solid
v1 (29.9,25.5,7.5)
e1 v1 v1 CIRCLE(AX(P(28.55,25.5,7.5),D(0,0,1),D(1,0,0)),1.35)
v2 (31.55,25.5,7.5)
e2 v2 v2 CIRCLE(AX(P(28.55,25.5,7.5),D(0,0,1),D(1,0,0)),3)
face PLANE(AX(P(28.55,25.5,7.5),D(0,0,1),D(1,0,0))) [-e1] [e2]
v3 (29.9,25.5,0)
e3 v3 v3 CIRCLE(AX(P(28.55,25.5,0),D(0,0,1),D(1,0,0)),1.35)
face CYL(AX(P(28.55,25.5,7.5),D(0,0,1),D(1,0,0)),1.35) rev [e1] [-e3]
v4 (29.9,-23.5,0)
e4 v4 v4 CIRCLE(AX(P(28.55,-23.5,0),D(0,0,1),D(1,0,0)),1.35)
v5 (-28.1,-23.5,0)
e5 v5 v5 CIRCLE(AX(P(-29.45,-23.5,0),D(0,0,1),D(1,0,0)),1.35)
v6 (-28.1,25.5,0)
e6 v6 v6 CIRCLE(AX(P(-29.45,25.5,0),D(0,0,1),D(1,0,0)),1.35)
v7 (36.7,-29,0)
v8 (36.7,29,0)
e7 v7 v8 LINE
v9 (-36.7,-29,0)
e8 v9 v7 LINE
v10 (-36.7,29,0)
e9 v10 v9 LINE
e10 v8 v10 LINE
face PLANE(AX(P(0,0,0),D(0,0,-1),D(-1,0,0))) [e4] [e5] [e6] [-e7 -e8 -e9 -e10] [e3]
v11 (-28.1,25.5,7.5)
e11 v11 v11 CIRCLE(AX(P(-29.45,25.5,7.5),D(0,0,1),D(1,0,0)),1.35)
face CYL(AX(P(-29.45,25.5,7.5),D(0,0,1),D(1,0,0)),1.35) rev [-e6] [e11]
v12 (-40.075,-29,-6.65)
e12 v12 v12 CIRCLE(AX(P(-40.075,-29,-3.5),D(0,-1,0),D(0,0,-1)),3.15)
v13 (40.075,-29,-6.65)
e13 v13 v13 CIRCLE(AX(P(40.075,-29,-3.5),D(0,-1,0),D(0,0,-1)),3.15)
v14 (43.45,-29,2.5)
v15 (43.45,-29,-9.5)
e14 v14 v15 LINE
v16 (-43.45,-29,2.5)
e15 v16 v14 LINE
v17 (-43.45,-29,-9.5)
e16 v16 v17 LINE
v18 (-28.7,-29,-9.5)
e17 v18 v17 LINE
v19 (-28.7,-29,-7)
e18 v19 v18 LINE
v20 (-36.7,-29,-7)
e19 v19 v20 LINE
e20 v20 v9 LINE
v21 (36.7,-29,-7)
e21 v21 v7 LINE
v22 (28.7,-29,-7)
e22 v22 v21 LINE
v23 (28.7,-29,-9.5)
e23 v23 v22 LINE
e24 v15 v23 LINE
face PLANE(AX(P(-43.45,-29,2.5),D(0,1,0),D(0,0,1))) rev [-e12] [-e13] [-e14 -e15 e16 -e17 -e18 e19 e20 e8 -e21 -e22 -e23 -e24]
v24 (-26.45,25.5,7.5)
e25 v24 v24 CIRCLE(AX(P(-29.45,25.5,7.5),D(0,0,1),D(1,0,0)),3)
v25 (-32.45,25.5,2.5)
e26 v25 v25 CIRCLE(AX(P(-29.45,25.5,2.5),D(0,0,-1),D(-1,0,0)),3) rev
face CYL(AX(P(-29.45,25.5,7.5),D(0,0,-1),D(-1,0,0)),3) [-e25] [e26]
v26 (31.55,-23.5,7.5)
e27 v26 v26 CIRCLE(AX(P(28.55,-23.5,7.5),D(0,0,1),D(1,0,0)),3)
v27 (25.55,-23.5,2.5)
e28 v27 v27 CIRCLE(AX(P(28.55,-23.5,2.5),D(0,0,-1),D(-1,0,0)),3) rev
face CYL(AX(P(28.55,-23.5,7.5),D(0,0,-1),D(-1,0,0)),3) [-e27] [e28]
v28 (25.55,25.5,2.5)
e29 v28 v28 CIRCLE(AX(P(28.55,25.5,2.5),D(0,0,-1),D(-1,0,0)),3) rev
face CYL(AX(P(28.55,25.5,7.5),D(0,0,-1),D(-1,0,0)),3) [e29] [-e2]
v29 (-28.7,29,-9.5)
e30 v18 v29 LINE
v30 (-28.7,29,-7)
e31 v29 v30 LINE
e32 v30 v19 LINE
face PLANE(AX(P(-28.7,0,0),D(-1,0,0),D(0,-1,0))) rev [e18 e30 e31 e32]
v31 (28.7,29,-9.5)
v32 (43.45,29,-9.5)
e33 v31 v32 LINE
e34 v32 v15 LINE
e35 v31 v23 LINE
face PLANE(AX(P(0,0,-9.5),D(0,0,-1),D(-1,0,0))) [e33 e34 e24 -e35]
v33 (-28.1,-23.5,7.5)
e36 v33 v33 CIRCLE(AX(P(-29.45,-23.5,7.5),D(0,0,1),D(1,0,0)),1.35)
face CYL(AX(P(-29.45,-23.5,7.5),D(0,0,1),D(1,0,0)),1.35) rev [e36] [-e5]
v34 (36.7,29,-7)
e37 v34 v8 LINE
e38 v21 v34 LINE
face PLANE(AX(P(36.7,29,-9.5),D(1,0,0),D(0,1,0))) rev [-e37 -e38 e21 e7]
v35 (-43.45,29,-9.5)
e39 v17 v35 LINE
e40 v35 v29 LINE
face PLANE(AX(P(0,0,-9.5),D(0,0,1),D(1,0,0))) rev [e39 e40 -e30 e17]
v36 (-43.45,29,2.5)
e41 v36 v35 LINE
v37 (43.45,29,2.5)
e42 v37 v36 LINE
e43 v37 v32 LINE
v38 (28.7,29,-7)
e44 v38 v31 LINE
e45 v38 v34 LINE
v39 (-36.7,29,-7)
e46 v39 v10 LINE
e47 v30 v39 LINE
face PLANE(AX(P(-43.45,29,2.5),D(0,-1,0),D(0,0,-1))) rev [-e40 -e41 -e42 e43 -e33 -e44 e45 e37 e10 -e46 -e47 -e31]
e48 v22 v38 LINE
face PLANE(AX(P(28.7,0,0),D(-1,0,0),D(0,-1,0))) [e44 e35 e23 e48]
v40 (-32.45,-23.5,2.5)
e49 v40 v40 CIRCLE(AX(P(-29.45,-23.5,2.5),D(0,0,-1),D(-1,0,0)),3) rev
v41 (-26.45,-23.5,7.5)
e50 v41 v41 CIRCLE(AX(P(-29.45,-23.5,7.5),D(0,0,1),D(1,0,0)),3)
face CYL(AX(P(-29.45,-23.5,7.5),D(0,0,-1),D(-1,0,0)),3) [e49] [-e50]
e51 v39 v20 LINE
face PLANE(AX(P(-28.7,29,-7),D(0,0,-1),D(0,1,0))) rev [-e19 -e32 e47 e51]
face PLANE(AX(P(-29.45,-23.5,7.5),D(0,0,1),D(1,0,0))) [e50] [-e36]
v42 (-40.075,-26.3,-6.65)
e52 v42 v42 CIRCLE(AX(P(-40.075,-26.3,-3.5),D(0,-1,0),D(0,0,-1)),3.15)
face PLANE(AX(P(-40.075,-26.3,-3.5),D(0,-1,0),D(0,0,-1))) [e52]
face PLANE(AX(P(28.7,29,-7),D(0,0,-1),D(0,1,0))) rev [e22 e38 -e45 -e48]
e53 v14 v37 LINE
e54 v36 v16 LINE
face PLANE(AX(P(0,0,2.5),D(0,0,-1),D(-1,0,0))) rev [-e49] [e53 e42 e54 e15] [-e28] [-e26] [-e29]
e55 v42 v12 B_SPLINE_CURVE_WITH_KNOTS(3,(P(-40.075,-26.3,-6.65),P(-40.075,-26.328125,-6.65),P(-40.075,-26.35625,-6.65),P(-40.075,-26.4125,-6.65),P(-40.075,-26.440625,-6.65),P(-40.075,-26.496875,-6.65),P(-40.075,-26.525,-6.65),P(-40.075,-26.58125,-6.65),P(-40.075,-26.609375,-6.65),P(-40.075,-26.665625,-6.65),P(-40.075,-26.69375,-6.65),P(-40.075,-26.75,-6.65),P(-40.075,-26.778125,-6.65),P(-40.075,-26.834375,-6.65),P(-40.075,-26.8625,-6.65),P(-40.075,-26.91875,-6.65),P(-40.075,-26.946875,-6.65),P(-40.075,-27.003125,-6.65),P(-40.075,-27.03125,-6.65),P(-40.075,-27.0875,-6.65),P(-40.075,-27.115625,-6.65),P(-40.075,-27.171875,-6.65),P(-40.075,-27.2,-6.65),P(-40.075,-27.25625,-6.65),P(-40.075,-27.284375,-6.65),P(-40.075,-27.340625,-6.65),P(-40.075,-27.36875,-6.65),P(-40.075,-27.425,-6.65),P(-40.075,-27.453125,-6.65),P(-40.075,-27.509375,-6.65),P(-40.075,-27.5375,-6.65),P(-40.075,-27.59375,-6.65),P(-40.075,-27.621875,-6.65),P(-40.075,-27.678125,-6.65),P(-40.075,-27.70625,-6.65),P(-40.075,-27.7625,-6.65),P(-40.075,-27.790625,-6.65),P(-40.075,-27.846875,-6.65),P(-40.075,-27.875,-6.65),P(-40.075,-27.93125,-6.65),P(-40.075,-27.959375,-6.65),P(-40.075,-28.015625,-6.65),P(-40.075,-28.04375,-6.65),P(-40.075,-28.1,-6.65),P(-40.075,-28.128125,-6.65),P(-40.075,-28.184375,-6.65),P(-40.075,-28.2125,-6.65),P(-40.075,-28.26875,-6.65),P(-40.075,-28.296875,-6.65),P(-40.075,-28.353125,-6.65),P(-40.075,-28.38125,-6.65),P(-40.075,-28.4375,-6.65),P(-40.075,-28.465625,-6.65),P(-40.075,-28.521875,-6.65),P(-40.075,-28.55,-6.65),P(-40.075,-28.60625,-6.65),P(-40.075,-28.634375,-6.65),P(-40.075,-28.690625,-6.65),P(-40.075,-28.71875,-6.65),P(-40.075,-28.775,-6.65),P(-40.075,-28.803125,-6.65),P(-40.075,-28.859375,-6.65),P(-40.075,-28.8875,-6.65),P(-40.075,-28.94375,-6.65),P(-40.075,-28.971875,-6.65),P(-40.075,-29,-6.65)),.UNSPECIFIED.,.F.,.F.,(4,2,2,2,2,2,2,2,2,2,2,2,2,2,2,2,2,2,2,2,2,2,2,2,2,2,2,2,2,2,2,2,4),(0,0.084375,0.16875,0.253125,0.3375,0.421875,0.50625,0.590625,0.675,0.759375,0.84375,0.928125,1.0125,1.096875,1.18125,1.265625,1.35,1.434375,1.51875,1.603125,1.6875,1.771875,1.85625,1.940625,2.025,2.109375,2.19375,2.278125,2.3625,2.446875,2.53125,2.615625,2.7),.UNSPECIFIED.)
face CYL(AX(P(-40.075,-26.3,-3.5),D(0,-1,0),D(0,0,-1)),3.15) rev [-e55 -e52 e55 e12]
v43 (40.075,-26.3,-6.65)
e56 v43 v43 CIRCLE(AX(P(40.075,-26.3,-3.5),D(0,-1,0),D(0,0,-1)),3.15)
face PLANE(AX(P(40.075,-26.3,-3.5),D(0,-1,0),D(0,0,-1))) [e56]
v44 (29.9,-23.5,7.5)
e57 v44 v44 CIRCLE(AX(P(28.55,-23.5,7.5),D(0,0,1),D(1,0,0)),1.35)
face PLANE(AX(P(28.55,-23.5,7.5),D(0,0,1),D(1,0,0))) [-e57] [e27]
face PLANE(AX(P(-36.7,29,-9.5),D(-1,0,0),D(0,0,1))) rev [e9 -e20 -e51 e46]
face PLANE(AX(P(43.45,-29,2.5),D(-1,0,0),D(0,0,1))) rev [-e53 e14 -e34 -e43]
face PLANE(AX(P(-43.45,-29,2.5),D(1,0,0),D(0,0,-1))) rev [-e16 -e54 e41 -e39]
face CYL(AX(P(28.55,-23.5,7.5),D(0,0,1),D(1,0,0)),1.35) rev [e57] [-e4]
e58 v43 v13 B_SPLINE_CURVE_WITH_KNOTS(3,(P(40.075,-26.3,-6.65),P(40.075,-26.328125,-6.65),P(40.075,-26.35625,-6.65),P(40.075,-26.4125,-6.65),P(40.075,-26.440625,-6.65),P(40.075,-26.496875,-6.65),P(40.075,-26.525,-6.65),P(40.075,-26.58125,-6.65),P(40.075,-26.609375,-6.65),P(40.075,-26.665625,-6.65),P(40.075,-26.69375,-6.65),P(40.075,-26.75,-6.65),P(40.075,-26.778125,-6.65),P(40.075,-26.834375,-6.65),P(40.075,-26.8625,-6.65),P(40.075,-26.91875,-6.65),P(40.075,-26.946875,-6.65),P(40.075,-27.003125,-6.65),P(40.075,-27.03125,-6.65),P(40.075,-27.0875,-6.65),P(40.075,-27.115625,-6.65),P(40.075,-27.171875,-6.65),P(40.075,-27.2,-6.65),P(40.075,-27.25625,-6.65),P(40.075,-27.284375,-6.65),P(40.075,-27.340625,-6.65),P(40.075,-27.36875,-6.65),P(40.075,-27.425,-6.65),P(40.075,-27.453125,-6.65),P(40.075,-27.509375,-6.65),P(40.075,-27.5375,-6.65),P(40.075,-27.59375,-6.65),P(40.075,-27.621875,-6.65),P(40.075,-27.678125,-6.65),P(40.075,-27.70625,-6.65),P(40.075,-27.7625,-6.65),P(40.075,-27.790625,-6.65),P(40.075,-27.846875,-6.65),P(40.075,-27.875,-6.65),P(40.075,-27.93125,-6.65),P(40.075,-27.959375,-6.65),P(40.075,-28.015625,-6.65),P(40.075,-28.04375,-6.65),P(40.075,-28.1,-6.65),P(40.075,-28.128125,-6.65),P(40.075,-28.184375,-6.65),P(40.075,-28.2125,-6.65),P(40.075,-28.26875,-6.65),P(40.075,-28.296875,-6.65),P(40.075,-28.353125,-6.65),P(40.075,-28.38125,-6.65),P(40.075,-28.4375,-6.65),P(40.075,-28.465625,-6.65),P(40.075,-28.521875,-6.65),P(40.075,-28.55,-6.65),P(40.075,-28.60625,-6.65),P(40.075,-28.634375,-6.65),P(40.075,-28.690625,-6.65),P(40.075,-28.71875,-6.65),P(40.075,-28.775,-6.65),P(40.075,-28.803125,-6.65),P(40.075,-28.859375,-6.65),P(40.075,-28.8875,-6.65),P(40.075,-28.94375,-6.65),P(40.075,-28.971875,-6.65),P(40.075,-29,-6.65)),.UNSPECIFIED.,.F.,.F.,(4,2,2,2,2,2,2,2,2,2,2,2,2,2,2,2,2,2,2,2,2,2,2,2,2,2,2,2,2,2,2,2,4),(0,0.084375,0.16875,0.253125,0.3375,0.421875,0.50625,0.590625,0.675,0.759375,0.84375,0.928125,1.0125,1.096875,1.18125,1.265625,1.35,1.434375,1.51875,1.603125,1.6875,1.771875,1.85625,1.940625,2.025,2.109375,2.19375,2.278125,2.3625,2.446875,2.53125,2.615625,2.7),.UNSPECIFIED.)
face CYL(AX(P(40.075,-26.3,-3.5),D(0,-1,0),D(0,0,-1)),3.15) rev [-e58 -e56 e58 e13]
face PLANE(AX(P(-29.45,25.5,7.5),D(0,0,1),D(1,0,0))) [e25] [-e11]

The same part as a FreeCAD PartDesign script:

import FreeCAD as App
import Part
import Sketcher

V = App.Vector
Q = App.Units.Quantity

doc = App.newDocument("Part")
body = doc.addObject("PartDesign::Body", "Body")

sketch1 = doc.addObject("Sketcher::SketchObject", "Sketch")
body.addObject(sketch1)
sketch1.AttachmentSupport = (doc.XY_Plane, [""])
sketch1.MapMode = "FlatFace"
sketch1.addGeometry([
    Part.LineSegment(V(-43, 29, 0), V(-43, -29, 0)),
    Part.LineSegment(V(-43, -29, 0), V(43, -29, 0)),
    Part.LineSegment(V(43, -29, 0), V(43, 29, 0)),
    Part.LineSegment(V(43, 29, 0), V(-43, 29, 0)),
], False)
sketch1.addConstraint([
    Sketcher.Constraint("Coincident", 0, 2, 1, 1),
    Sketcher.Constraint("Coincident", 1, 2, 2, 1),
    Sketcher.Constraint("Coincident", 2, 2, 3, 1),
    Sketcher.Constraint("Coincident", 3, 2, 0, 1),
    Sketcher.Constraint("Vertical", 0),
    Sketcher.Constraint("Horizontal", 1),
    Sketcher.Constraint("Vertical", 2),
    Sketcher.Constraint("Horizontal", 3),
    Sketcher.Constraint("Symmetric", 0, 2, 2, 2, -1, 1),
    Sketcher.Constraint("DistanceY", 0, 2, 0, 1, Q("58 mm")),
    Sketcher.Constraint("DistanceX", 1, 1, 1, 2, Q("86.9 mm")),
])
pad1 = doc.addObject("PartDesign::Pad", "Pad")
body.addObject(pad1)
pad1.Profile = sketch1
pad1.Length = 2.5

sketch2 = doc.addObject("Sketcher::SketchObject", "Sketch001")
body.addObject(sketch2)
sketch2.AttachmentSupport = (doc.XY_Plane, [""])
sketch2.MapMode = "FlatFace"
sketch2.AttachmentOffset = App.Placement(V(0, 0, 2.5), App.Rotation())
sketch2.addGeometry([
    Part.Circle(V(-29.4, 25.5, 0), V(0, 0, 1), 3),
    Part.Circle(V(28.6, 25.5, 0), V(0, 0, 1), 3),
], False)
sketch2.addConstraint([
    Sketcher.Constraint("Equal", 0, 1),
    Sketcher.Constraint("Horizontal", 0, 3, 1, 3),
    Sketcher.Constraint("Diameter", 0, Q("6 mm")),
    Sketcher.Constraint("DistanceX", 0, 3, 1, 3, Q("58 mm")),
    Sketcher.Constraint("DistanceY", -1, 1, 0, 3, Q("25.5 mm")),
    Sketcher.Constraint("DistanceX", 0, 3, -1, 1, Q("29.45 mm")),
])
pad2 = doc.addObject("PartDesign::Pad", "Pad001")
body.addObject(pad2)
pad2.Profile = sketch2
pad2.Length = 5
doc.recompute()

linearpattern = doc.addObject("PartDesign::LinearPattern", "LinearPattern")
body.addObject(linearpattern)
linearpattern.Originals = [pad2]
linearpattern.Direction = (doc.Y_Axis, [""])
linearpattern.Mode = "offset"
linearpattern.Offset = 49
linearpattern.Occurrences = 2
linearpattern.Reversed = True
body.Tip = linearpattern

sketch3 = doc.addObject("Sketcher::SketchObject", "Sketch002")
body.addObject(sketch3)
sketch3.AttachmentSupport = (doc.XY_Plane, [""])
sketch3.MapMode = "FlatFace"
sketch3.AttachmentOffset = App.Placement(V(0, 0, 7.5), App.Rotation())
sketch3.addGeometry([
    Part.Circle(V(-29.4, 25.5, 0), V(0, 0, 1), 1.4),
    Part.Circle(V(-29.4, -23.5, 0), V(0, 0, 1), 1.4),
    Part.Circle(V(28.6, 25.5, 0), V(0, 0, 1), 1.4),
    Part.Circle(V(28.6, -23.5, 0), V(0, 0, 1), 1.4),
], False)
sketch3.addConstraint([
    Sketcher.Constraint("Equal", 0, 1),
    Sketcher.Constraint("Equal", 1, 2),
    Sketcher.Constraint("Equal", 2, 3),
    Sketcher.Constraint("Horizontal", 0, 3, 2, 3),
    Sketcher.Constraint("Horizontal", 1, 3, 3, 3),
    Sketcher.Constraint("Vertical", 0, 3, 1, 3),
    Sketcher.Constraint("Vertical", 2, 3, 3, 3),
    Sketcher.Constraint("Diameter", 0, Q("2.7 mm")),
    Sketcher.Constraint("DistanceY", 1, 3, 0, 3, Q("49 mm")),
    Sketcher.Constraint("DistanceX", 0, 3, 2, 3, Q("58 mm")),
    Sketcher.Constraint("DistanceY", -1, 1, 0, 3, Q("25.5 mm")),
    Sketcher.Constraint("DistanceX", 0, 3, -1, 1, Q("29.45 mm")),
])
doc.recompute()
hole = doc.addObject("PartDesign::Hole", "Hole")
body.addObject(hole)
hole.Profile = sketch3
hole.ThreadType = "None"
hole.Diameter = 2.7
hole.DepthType = "ThroughAll"

sketch4 = doc.addObject("Sketcher::SketchObject", "Sketch003")
body.addObject(sketch4)
sketch4.AttachmentSupport = (doc.XY_Plane, [""])
sketch4.MapMode = "FlatFace"
sketch4.addGeometry([
    Part.LineSegment(V(43, 29, 0), V(43, -29, 0)),
    Part.LineSegment(V(43, -29, 0), V(37, -29, 0)),
    Part.LineSegment(V(37, -29, 0), V(37, 29, 0)),
    Part.LineSegment(V(37, 29, 0), V(43, 29, 0)),
    Part.LineSegment(V(-37, 29, 0), V(-37, -29, 0)),
    Part.LineSegment(V(-37, -29, 0), V(-43, -29, 0)),
    Part.LineSegment(V(-43, -29, 0), V(-43, 29, 0)),
    Part.LineSegment(V(-43, 29, 0), V(-37, 29, 0)),
], False)
sketch4.addConstraint([
    Sketcher.Constraint("Coincident", 0, 2, 1, 1),
    Sketcher.Constraint("Coincident", 1, 2, 2, 1),
    Sketcher.Constraint("Coincident", 2, 2, 3, 1),
    Sketcher.Constraint("Coincident", 3, 2, 0, 1),
    Sketcher.Constraint("Coincident", 4, 2, 5, 1),
    Sketcher.Constraint("Coincident", 5, 2, 6, 1),
    Sketcher.Constraint("Coincident", 6, 2, 7, 1),
    Sketcher.Constraint("Coincident", 7, 2, 4, 1),
    Sketcher.Constraint("Vertical", 0),
    Sketcher.Constraint("Horizontal", 1),
    Sketcher.Constraint("Vertical", 2),
    Sketcher.Constraint("Horizontal", 3),
    Sketcher.Constraint("Vertical", 4),
    Sketcher.Constraint("Horizontal", 5),
    Sketcher.Constraint("Vertical", 6),
    Sketcher.Constraint("Horizontal", 7),
    Sketcher.Constraint("Symmetric", 2, 2, 4, 2, -1, 1),
    Sketcher.Constraint("Symmetric", 0, 2, 6, 2, -1, 1),
    Sketcher.Constraint("Horizontal", 1, 2, 4, 2),
    Sketcher.Constraint("DistanceY", 0, 2, 0, 1, Q("58 mm")),
    Sketcher.Constraint("DistanceX", 1, 2, 1, 1, Q("6.75 mm")),
    Sketcher.Constraint("DistanceX", -1, 1, 1, 2, Q("36.7 mm")),
])
pad3 = doc.addObject("PartDesign::Pad", "Pad002")
body.addObject(pad3)
pad3.Profile = sketch4
pad3.Length = 9.5
pad3.Reversed = True

sketch5 = doc.addObject("Sketcher::SketchObject", "Sketch004")
body.addObject(sketch5)
sketch5.AttachmentSupport = (doc.YZ_Plane, [""])
sketch5.MapMode = "FlatFace"
sketch5.AttachmentOffset = App.Placement(V(0, 0, 36.7), App.Rotation())
sketch5.addGeometry([
    Part.LineSegment(V(29, -9.5, 0), V(-29, -9.5, 0)),
    Part.LineSegment(V(-29, -9.5, 0), V(-29, -7, 0)),
    Part.LineSegment(V(-29, -7, 0), V(29, -7, 0)),
    Part.LineSegment(V(29, -7, 0), V(29, -9.5, 0)),
], False)
sketch5.addConstraint([
    Sketcher.Constraint("Coincident", 0, 2, 1, 1),
    Sketcher.Constraint("Coincident", 1, 2, 2, 1),
    Sketcher.Constraint("Coincident", 2, 2, 3, 1),
    Sketcher.Constraint("Coincident", 3, 2, 0, 1),
    Sketcher.Constraint("Horizontal", 0),
    Sketcher.Constraint("Vertical", 1),
    Sketcher.Constraint("Horizontal", 2),
    Sketcher.Constraint("Vertical", 3),
    Sketcher.Constraint("DistanceX", 0, 2, 0, 1, Q("58 mm")),
    Sketcher.Constraint("DistanceY", 1, 1, 1, 2, Q("2.5 mm")),
    Sketcher.Constraint("DistanceX", 0, 2, -1, 1, Q("29 mm")),
    Sketcher.Constraint("DistanceY", 1, 2, -1, 1, Q("7 mm")),
])
pad4 = doc.addObject("PartDesign::Pad", "Pad003")
body.addObject(pad4)
pad4.Profile = sketch5
pad4.Length = 8
pad4.Reversed = True

sketch6 = doc.addObject("Sketcher::SketchObject", "Sketch005")
body.addObject(sketch6)
sketch6.AttachmentSupport = (doc.YZ_Plane, [""])
sketch6.MapMode = "FlatFace"
sketch6.AttachmentOffset = App.Placement(V(0, 0, -36.7), App.Rotation())
sketch6.addGeometry([
    Part.LineSegment(V(29, -7, 0), V(-29, -7, 0)),
    Part.LineSegment(V(-29, -7, 0), V(-29, -9.5, 0)),
    Part.LineSegment(V(-29, -9.5, 0), V(29, -9.5, 0)),
    Part.LineSegment(V(29, -9.5, 0), V(29, -7, 0)),
], False)
sketch6.addConstraint([
    Sketcher.Constraint("Coincident", 0, 2, 1, 1),
    Sketcher.Constraint("Coincident", 1, 2, 2, 1),
    Sketcher.Constraint("Coincident", 2, 2, 3, 1),
    Sketcher.Constraint("Coincident", 3, 2, 0, 1),
    Sketcher.Constraint("Horizontal", 0),
    Sketcher.Constraint("Vertical", 1),
    Sketcher.Constraint("Horizontal", 2),
    Sketcher.Constraint("Vertical", 3),
    Sketcher.Constraint("DistanceX", 0, 2, 0, 1, Q("58 mm")),
    Sketcher.Constraint("DistanceY", 1, 2, 1, 1, Q("2.5 mm")),
    Sketcher.Constraint("DistanceX", 0, 2, -1, 1, Q("29 mm")),
    Sketcher.Constraint("DistanceY", 0, 2, -1, 1, Q("7 mm")),
])
pad5 = doc.addObject("PartDesign::Pad", "Pad004")
body.addObject(pad5)
pad5.Profile = sketch6
pad5.Length = 8

sketch7 = doc.addObject("Sketcher::SketchObject", "Sketch006")
body.addObject(sketch7)
sketch7.AttachmentSupport = (doc.XZ_Plane, [""])
sketch7.MapMode = "FlatFace"
sketch7.AttachmentOffset = App.Placement(V(0, 0, 29), App.Rotation())
sketch7.addGeometry([
    Part.Circle(V(-40.1, -3.5, 0), V(0, 0, 1), 3.1),
    Part.Circle(V(40.1, -3.5, 0), V(0, 0, 1), 3.1),
], False)
sketch7.addConstraint([
    Sketcher.Constraint("Equal", 0, 1),
    Sketcher.Constraint("Symmetric", 0, 3, 1, 3, -2),
    Sketcher.Constraint("Diameter", 0, Q("6.3 mm")),
    Sketcher.Constraint("DistanceY", 0, 3, -1, 1, Q("3.5 mm")),
    Sketcher.Constraint("DistanceX", 0, 3, 1, 3, Q("80.15 mm")),
])
pocket1 = doc.addObject("PartDesign::Pocket", "Pocket")
body.addObject(pocket1)
pocket1.Profile = sketch7
pocket1.Length = 2.7

doc.recompute()
